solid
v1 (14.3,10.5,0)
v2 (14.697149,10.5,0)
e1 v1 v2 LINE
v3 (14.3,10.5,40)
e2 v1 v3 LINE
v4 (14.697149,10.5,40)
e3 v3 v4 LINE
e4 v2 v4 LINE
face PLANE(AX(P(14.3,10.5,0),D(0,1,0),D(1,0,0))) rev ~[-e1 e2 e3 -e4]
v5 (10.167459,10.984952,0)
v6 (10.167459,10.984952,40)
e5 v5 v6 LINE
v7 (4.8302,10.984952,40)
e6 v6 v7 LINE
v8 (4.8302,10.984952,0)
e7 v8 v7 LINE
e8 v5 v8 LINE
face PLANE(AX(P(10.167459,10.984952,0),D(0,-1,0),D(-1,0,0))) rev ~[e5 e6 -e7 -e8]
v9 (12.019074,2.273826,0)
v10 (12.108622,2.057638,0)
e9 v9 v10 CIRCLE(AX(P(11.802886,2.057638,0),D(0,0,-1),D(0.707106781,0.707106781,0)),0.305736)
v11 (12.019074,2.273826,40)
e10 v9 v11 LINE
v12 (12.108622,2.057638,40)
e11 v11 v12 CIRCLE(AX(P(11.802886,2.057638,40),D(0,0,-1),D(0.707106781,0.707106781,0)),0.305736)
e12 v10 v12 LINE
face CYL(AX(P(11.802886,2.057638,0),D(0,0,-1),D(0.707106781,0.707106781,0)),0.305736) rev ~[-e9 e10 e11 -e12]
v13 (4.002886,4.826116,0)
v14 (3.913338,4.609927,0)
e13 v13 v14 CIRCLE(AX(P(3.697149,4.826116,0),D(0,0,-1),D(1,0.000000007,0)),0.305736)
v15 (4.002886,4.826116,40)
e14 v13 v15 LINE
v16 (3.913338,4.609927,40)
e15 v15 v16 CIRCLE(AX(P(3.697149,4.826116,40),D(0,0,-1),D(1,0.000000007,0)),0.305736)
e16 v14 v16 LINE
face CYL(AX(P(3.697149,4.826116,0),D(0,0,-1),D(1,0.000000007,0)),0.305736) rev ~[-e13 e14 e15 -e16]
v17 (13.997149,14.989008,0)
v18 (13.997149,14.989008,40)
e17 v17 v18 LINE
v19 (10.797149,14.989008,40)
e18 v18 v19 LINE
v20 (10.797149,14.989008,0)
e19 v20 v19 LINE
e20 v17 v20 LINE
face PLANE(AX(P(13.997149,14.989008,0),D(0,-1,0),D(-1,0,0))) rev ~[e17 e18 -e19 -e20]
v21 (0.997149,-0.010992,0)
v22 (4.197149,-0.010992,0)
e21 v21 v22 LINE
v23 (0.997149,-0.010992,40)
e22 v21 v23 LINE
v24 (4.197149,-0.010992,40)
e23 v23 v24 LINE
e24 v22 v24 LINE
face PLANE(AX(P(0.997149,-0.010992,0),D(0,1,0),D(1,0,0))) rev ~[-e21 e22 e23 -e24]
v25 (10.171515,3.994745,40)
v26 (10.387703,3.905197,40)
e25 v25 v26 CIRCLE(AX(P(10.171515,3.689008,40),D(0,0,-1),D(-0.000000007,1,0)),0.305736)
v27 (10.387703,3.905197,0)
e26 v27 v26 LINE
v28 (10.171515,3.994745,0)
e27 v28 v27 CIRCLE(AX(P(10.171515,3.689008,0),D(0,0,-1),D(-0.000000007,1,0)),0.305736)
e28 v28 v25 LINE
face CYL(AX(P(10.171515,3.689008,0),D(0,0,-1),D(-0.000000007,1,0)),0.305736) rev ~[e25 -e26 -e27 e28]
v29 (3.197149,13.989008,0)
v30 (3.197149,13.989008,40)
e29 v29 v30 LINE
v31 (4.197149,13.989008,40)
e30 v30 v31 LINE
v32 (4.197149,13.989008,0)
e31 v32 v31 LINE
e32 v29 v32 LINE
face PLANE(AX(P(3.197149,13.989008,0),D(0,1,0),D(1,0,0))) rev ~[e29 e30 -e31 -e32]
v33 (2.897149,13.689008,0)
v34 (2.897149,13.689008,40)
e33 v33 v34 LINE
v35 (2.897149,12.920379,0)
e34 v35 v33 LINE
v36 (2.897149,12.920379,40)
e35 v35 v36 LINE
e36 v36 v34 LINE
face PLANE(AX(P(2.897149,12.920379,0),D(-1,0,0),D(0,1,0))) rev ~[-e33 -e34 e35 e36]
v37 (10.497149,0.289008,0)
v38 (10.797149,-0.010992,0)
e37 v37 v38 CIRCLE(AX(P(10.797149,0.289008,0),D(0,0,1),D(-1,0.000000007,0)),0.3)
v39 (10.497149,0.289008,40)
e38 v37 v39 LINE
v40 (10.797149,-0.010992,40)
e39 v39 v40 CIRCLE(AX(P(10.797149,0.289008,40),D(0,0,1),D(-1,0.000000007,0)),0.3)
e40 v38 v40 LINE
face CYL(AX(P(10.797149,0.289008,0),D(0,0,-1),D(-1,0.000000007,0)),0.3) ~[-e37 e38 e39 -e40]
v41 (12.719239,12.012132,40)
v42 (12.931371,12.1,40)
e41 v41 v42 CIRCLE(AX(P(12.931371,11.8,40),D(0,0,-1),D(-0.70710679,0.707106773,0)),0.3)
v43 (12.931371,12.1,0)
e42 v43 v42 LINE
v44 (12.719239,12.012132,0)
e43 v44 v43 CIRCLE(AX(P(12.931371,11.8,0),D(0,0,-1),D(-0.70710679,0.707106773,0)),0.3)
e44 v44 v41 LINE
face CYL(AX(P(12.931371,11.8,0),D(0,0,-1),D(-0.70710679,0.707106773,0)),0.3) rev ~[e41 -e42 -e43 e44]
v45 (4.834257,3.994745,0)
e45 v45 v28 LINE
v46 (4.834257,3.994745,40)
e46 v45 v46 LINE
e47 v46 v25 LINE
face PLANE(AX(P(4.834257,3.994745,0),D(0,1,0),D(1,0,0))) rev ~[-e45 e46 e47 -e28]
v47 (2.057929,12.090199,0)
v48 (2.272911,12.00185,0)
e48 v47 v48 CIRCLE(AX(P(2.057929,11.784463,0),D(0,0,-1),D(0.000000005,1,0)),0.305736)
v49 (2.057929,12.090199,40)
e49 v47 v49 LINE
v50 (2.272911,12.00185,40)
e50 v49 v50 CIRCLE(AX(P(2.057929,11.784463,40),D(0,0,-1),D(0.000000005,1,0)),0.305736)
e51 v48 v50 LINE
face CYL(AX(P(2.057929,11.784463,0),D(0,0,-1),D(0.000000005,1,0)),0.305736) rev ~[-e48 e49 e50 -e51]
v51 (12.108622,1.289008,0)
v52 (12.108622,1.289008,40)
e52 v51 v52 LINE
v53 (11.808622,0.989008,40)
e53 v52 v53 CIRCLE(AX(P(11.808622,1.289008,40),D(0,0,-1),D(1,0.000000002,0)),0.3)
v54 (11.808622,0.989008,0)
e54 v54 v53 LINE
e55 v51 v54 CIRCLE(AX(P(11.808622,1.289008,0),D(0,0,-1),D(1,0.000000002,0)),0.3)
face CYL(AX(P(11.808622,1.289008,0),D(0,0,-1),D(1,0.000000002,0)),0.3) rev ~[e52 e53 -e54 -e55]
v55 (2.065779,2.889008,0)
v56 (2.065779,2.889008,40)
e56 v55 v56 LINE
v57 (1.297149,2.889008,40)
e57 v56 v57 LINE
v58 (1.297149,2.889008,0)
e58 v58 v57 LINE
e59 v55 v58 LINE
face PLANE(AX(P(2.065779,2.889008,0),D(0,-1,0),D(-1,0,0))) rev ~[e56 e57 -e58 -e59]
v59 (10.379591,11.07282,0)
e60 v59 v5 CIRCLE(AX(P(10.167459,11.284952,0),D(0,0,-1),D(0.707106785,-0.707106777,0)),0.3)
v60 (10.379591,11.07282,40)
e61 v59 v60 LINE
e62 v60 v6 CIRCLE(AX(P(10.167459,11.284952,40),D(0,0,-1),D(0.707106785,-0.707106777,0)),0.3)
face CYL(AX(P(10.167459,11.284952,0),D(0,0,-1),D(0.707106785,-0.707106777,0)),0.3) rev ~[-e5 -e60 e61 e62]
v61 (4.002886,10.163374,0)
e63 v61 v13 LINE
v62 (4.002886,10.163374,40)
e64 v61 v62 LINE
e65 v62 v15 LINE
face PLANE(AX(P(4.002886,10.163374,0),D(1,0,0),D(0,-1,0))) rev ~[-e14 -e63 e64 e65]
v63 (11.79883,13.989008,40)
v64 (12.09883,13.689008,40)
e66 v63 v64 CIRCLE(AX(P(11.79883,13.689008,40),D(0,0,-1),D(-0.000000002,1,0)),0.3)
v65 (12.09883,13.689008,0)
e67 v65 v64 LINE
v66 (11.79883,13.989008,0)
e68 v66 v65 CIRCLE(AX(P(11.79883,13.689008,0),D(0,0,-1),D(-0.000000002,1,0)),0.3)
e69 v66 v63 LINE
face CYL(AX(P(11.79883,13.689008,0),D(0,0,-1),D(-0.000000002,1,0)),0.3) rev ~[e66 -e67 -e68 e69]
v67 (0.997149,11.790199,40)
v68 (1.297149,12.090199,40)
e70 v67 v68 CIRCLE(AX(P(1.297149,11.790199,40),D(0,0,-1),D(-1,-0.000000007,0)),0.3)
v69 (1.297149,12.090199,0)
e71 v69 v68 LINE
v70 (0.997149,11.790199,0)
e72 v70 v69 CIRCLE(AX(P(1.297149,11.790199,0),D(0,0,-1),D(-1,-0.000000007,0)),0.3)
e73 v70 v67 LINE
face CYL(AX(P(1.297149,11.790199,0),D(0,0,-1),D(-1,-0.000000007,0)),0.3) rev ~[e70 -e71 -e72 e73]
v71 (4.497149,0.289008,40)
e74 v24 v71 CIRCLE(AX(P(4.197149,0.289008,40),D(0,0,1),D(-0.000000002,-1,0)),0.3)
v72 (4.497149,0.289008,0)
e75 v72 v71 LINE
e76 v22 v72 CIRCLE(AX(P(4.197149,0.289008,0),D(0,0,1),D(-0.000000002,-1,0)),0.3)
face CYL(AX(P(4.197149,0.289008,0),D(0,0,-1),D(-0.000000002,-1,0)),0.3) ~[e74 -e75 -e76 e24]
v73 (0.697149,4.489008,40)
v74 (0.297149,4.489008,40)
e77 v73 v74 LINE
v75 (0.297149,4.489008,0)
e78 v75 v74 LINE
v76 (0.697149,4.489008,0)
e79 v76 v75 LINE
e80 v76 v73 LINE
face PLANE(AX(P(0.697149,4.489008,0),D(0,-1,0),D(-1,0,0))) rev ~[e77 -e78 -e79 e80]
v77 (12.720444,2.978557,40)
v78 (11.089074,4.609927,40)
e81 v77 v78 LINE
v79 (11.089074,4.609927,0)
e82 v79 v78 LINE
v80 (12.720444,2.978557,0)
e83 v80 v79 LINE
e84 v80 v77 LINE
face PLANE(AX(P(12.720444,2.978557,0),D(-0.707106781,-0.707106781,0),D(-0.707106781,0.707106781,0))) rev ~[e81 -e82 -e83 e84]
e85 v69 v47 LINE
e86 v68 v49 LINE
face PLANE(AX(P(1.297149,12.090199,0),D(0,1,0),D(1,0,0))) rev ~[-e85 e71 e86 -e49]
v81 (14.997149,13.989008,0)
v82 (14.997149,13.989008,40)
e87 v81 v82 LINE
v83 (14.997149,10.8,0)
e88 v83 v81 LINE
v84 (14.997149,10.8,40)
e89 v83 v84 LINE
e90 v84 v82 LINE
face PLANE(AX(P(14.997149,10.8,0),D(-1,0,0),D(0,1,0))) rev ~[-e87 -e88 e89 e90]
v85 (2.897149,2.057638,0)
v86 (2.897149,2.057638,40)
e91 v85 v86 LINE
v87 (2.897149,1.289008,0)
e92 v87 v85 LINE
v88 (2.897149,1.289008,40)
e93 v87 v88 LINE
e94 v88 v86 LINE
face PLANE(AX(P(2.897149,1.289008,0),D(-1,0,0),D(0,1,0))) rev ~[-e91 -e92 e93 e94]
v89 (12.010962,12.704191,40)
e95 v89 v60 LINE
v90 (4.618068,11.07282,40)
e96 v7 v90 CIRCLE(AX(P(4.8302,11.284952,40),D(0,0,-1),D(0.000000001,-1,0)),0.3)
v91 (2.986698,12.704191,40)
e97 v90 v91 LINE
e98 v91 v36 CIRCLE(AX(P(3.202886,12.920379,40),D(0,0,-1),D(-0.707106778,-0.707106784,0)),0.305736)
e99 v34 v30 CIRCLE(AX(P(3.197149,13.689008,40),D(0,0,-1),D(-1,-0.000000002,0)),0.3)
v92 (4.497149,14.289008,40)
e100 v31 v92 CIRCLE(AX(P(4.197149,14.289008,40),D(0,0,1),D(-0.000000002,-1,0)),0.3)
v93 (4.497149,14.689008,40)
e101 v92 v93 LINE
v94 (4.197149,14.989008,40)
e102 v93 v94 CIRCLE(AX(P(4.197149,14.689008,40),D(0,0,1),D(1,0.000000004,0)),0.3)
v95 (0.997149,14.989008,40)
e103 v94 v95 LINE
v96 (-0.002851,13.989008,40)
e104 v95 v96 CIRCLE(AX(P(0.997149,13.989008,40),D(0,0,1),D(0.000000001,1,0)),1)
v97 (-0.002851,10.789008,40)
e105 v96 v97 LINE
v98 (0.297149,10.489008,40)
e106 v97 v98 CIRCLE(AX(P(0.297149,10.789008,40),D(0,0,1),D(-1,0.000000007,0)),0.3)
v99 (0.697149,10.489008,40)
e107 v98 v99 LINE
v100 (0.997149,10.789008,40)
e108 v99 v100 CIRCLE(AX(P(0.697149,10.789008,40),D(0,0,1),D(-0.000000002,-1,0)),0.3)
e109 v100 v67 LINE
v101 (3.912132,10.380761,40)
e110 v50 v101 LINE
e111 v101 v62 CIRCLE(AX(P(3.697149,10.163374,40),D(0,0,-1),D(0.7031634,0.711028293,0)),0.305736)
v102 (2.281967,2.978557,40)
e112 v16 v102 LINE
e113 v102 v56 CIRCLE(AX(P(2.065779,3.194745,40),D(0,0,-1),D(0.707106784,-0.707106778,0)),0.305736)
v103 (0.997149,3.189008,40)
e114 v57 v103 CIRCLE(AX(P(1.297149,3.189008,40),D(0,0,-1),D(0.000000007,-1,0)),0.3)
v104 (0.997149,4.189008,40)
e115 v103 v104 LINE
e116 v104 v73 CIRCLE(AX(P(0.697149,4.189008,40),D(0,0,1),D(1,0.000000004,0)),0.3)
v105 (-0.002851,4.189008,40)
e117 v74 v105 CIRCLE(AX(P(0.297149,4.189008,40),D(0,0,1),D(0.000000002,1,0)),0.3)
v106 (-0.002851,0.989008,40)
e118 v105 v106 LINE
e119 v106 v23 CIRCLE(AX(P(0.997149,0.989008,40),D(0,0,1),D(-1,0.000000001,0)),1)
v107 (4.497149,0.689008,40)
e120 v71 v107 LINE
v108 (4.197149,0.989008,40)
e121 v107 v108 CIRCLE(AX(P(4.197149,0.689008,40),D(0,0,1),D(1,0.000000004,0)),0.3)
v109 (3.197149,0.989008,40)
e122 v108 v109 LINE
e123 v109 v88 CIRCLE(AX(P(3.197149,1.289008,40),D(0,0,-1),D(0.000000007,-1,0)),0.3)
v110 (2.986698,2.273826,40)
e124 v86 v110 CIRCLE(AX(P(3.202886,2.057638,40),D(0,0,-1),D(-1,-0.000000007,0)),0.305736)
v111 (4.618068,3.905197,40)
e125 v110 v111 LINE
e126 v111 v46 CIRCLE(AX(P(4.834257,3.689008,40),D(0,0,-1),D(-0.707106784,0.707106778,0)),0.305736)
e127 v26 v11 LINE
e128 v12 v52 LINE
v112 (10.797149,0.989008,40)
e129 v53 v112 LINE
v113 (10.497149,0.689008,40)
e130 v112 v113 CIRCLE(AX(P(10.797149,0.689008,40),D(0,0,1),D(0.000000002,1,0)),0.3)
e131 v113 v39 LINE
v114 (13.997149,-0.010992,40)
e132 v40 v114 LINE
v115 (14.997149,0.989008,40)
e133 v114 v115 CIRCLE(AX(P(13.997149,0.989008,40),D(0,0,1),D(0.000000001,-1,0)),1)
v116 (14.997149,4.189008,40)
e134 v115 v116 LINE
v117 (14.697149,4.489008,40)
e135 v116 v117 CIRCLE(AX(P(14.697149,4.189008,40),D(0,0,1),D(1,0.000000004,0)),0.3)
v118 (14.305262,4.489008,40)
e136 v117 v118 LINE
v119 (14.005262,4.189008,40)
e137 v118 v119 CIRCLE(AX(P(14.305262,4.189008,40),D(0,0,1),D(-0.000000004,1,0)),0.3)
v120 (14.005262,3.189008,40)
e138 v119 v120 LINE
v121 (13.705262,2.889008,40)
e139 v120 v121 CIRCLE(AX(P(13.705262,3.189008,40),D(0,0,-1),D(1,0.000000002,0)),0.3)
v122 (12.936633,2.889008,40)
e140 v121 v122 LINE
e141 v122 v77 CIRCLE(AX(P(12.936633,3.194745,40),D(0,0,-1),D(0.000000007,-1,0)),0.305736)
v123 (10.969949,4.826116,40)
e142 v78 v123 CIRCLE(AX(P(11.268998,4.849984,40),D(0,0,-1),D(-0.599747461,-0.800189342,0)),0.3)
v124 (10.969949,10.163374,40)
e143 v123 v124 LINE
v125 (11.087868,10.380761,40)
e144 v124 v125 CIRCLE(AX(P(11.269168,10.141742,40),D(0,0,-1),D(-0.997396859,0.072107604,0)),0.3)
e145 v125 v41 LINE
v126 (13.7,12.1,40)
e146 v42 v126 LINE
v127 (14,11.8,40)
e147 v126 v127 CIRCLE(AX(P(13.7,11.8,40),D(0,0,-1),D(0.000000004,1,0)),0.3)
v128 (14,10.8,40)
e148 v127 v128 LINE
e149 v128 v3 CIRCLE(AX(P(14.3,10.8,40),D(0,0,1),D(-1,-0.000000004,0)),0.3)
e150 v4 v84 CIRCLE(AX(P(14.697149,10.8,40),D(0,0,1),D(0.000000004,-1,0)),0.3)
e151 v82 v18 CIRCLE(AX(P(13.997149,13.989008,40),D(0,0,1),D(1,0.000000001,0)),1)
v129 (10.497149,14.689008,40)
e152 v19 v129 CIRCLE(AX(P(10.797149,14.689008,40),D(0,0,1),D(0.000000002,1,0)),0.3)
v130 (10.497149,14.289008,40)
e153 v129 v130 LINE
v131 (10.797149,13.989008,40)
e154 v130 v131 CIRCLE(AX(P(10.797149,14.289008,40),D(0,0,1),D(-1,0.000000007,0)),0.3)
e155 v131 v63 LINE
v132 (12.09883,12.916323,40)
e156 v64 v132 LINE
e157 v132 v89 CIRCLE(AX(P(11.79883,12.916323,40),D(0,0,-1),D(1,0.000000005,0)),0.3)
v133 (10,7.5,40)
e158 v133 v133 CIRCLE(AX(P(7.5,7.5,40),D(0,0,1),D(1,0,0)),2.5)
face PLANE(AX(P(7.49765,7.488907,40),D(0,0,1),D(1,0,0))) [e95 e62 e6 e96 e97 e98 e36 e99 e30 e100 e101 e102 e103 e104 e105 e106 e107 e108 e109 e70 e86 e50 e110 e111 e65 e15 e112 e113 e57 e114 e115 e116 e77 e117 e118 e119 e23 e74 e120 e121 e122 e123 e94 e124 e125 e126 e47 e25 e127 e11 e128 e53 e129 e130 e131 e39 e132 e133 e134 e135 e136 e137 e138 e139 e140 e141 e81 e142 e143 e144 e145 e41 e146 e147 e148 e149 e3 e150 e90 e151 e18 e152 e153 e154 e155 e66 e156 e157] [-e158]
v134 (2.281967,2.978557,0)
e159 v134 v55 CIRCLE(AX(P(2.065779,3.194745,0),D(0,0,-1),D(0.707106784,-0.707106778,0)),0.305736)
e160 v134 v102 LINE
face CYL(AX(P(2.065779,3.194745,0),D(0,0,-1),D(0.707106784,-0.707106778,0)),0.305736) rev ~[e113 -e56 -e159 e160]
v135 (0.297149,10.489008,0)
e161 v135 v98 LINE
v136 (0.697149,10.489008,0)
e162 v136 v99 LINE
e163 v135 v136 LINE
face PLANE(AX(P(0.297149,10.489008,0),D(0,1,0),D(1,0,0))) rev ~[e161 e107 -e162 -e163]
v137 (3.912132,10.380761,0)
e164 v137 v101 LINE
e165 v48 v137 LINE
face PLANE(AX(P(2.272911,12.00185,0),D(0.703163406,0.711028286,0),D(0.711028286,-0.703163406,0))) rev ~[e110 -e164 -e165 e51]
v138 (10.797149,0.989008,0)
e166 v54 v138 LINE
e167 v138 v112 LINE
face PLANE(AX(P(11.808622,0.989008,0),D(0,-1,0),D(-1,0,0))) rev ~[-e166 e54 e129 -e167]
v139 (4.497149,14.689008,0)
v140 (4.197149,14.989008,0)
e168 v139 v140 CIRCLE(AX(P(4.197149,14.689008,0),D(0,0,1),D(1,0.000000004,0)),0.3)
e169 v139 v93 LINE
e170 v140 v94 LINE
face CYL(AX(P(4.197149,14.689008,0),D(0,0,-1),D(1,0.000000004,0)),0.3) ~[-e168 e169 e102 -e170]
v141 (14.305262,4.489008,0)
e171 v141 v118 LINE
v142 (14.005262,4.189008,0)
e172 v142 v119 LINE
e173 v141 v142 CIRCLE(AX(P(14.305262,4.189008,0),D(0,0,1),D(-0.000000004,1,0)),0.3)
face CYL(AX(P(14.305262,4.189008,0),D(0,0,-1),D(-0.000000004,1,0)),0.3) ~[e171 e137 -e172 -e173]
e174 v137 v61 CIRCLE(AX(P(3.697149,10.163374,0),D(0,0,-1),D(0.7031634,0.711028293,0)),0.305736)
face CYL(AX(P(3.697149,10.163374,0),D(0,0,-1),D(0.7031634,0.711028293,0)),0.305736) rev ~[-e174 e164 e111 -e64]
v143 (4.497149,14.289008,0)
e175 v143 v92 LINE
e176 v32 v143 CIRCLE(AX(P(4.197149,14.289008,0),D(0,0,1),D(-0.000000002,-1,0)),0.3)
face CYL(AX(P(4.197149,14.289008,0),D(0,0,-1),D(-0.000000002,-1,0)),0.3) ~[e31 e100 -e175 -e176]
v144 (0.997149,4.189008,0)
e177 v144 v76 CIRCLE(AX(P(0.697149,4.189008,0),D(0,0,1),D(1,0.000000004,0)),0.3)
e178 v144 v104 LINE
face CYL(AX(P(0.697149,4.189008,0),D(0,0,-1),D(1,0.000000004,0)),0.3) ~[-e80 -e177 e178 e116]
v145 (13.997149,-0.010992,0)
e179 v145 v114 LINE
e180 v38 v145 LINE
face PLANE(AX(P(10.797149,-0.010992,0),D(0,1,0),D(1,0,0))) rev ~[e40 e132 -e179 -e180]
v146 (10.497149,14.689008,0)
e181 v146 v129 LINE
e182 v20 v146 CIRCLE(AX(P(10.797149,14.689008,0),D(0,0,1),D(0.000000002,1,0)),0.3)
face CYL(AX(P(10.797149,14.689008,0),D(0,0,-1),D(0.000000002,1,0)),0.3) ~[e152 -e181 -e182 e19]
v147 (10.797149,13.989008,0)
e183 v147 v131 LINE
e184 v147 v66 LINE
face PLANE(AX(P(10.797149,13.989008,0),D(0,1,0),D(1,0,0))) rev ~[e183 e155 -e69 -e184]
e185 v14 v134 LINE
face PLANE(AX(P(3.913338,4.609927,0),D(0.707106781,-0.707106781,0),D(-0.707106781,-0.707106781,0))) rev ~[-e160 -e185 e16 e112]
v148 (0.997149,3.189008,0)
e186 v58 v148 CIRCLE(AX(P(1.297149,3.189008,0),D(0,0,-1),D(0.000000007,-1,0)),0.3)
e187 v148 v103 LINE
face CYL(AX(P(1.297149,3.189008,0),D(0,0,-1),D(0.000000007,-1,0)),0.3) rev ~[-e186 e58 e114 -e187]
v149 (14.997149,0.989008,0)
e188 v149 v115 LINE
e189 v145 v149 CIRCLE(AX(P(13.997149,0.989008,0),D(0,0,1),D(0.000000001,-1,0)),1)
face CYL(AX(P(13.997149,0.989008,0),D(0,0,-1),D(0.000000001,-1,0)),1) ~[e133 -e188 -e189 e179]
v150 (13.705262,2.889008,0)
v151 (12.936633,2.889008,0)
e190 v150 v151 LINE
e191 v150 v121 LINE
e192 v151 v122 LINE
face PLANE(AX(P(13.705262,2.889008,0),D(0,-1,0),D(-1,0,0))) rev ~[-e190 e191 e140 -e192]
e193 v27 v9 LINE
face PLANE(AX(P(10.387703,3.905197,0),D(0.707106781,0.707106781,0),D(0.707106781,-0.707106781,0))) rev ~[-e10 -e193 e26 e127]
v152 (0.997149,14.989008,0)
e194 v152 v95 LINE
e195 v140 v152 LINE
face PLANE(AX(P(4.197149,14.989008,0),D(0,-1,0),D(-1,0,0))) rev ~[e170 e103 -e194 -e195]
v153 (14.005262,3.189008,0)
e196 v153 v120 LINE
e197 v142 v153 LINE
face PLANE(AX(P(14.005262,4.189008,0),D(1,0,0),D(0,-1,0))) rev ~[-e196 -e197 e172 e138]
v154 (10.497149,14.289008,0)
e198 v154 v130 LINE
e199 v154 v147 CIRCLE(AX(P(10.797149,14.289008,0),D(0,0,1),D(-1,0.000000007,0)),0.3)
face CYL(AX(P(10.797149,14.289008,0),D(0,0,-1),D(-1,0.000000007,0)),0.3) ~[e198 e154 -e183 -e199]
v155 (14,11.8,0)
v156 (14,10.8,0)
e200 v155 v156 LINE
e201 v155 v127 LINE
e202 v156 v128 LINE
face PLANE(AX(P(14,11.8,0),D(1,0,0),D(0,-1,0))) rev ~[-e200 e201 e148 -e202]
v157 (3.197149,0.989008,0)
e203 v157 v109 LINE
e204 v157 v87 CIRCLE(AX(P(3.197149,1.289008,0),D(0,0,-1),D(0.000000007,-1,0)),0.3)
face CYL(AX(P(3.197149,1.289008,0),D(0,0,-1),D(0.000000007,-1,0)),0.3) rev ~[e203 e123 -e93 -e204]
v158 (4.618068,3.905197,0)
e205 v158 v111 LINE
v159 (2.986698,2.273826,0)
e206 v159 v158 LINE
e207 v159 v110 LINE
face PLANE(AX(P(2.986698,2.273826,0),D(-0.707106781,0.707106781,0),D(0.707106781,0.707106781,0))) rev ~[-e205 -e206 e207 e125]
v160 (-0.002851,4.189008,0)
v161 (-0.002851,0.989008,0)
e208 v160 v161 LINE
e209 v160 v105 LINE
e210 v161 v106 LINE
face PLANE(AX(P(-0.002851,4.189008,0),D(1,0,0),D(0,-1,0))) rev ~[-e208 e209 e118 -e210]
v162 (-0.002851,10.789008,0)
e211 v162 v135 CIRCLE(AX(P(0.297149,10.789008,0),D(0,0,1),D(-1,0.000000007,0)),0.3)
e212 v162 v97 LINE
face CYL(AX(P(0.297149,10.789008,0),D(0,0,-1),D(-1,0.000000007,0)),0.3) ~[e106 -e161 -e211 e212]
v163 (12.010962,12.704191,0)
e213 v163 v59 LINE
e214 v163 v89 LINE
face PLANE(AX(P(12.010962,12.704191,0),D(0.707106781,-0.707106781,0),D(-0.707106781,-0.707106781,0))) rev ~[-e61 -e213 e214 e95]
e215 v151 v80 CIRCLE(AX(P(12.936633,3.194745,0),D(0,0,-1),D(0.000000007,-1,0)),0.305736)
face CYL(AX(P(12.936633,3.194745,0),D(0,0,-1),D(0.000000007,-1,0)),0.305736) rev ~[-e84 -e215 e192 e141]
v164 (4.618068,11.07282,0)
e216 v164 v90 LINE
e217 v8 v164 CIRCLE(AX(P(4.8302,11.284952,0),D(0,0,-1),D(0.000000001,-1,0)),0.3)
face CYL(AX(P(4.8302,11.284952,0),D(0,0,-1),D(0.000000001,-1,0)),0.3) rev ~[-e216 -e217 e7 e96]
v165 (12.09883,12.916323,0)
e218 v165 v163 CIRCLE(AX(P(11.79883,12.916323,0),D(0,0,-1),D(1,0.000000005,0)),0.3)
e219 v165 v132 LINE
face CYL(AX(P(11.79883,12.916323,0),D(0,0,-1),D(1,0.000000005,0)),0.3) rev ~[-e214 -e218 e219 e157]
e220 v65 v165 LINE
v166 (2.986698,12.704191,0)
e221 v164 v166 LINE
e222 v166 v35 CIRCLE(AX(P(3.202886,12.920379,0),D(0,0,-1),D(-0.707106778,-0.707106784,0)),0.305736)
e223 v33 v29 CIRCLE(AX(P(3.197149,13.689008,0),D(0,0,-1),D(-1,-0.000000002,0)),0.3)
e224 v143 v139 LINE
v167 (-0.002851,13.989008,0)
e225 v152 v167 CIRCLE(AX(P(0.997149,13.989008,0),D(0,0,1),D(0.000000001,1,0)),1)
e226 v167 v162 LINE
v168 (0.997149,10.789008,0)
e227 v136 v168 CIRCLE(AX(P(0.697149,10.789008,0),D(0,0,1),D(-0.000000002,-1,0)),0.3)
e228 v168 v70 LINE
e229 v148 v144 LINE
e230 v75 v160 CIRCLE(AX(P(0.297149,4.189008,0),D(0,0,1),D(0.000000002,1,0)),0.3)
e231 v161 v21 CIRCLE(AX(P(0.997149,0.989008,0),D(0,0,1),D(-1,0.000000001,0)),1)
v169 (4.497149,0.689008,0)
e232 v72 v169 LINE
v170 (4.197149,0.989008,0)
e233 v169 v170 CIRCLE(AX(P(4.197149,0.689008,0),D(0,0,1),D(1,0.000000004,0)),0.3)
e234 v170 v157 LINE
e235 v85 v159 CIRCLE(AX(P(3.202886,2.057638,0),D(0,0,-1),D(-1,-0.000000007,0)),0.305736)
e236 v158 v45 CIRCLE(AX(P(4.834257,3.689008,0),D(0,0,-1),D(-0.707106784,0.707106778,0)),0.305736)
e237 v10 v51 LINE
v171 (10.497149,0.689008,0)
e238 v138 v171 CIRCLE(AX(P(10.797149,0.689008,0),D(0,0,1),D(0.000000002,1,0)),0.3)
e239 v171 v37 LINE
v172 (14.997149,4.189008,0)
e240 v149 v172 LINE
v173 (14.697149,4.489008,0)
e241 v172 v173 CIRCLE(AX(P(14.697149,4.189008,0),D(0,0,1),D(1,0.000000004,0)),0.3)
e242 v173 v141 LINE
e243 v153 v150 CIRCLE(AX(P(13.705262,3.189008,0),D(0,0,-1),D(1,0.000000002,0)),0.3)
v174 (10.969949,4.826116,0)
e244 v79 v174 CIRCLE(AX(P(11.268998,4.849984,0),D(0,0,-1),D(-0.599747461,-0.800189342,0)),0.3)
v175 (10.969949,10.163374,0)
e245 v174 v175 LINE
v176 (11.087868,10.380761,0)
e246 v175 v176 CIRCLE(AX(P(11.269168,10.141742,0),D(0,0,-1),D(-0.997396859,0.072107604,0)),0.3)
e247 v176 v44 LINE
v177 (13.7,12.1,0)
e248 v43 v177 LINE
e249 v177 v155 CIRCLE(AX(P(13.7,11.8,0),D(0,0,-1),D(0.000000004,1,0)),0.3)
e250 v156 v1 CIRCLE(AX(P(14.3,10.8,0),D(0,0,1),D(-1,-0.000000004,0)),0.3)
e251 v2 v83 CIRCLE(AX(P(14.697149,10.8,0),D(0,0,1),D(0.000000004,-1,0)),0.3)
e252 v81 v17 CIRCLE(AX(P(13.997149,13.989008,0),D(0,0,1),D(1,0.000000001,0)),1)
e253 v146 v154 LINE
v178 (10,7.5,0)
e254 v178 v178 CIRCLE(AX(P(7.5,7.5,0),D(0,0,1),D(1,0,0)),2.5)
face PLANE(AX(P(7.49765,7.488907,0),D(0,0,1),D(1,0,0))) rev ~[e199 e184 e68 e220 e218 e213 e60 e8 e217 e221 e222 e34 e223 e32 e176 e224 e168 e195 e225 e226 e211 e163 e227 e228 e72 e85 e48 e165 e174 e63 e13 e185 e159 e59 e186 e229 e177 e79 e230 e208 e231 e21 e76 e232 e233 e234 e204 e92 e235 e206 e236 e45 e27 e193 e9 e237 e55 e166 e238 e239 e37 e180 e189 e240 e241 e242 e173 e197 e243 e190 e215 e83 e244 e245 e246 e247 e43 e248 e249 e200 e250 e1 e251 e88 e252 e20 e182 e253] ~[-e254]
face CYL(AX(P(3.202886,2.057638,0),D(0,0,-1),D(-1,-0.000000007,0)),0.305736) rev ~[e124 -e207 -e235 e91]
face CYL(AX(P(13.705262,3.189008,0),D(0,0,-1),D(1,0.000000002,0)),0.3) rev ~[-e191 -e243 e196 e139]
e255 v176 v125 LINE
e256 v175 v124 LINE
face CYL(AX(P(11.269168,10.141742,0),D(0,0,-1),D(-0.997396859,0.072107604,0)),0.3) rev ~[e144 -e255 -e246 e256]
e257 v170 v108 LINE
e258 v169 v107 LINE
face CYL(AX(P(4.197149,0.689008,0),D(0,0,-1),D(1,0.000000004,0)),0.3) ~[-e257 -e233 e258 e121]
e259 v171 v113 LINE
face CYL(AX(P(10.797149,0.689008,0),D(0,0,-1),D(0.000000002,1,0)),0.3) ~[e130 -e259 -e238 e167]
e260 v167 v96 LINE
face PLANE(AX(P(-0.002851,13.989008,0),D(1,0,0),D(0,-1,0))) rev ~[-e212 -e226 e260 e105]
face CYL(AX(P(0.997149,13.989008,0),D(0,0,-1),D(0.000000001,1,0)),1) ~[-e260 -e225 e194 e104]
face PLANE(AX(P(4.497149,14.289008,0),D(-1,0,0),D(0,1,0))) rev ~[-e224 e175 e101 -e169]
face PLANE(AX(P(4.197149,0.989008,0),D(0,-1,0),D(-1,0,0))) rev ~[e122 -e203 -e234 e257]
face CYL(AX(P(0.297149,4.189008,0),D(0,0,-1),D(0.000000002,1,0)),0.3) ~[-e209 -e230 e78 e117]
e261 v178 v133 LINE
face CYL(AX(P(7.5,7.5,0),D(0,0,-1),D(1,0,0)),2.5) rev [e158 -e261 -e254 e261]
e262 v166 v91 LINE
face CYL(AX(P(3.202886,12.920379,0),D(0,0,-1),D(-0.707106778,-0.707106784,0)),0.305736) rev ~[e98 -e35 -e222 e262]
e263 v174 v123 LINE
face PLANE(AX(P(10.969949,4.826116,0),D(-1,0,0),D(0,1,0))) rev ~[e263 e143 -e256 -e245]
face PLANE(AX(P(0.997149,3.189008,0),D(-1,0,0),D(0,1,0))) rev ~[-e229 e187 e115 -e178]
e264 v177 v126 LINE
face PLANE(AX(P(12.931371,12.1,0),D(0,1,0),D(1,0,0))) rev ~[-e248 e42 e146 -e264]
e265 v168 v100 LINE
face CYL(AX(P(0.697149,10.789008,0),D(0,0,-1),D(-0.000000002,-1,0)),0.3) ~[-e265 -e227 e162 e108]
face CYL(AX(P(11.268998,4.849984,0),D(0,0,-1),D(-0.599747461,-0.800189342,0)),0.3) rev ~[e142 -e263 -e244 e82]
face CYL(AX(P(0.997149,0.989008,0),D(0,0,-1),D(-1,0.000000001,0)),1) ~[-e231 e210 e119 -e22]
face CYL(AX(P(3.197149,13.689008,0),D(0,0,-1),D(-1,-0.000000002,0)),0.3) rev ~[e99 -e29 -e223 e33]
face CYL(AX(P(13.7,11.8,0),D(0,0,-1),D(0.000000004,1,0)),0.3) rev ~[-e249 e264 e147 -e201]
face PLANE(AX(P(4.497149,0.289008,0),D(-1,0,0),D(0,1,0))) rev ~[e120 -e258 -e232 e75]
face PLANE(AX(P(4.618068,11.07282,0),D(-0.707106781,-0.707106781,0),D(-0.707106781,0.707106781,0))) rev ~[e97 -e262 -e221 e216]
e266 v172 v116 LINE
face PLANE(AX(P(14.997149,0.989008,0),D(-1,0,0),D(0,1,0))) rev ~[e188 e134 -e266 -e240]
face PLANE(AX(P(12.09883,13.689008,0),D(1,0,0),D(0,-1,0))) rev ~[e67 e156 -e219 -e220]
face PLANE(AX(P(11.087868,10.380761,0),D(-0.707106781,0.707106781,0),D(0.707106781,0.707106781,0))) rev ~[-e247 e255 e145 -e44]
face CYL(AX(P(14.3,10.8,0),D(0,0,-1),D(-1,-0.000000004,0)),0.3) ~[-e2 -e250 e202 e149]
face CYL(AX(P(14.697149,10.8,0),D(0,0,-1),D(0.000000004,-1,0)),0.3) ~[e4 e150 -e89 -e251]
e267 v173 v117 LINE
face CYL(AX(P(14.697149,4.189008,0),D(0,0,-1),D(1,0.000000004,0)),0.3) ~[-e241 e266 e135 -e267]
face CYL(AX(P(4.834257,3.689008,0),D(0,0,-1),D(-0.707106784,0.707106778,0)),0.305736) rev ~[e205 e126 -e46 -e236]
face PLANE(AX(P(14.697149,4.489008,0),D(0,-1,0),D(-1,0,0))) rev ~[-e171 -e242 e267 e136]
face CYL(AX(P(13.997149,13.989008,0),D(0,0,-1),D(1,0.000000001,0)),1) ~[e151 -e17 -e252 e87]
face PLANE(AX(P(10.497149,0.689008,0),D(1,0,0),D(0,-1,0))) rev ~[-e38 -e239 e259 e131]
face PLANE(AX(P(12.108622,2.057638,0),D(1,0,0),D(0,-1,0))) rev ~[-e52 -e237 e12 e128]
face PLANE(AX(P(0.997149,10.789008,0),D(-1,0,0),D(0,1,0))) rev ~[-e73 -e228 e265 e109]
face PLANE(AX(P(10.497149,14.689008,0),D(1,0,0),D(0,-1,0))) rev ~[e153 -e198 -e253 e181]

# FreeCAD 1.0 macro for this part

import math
import FreeCAD as App
import Part
import Sketcher

V = App.Vector
Q = App.Units.Quantity

doc = App.newDocument("Part")
params = doc.addObject("Spreadsheet::Sheet", "Params")
for row, (alias, value) in enumerate([
    ("sketch1_diameter", "5 mm"),
    ("sketch1_radius", "1 mm"),
    ("sketch1_radius2", "0.3 mm"),
    ("sketch1_width", "1 mm"),
    ("sketch1_width2", "3.2 mm"),
    ("pad1_length", "40 mm"),
], start=1):
    params.set(f"A{row}", alias)
    params.set(f"B{row}", "=" + value)
    params.setAlias(f"B{row}", alias)

body = doc.addObject("PartDesign::Body", "Body")

# Sketch on XY plane
sketch1 = doc.addObject("Sketcher::SketchObject", "Sketch")
body.addObject(sketch1)
sketch1.AttachmentSupport = (doc.XY_Plane, [""])
sketch1.MapMode = "FlatFace"
sketch1.addGeometry([
    Part.LineSegment(V(0.997149, -0.010992, 0), V(4.197149, -0.010992, 0)),  # 0
    Part.ArcOfCircle(Part.Circle(V(4.197149, 0.289008, 0), V(0, 0, 1), 0.3), math.radians(-90), math.radians(0)),  # 1
    Part.LineSegment(V(4.497149, 0.289008, 0), V(4.497149, 0.689008, 0)),  # 2
    Part.ArcOfCircle(Part.Circle(V(4.197149, 0.689008, 0), V(0, 0, 1), 0.3), math.radians(0), math.radians(90)),  # 3
    Part.LineSegment(V(4.197149, 0.989008, 0), V(3.197149, 0.989008, 0)),  # 4
    Part.ArcOfCircle(Part.Circle(V(3.197149, 1.289008, 0), V(0, 0, 1), 0.3), math.radians(180), math.radians(270)),  # 5
    Part.LineSegment(V(2.897149, 1.289008, 0), V(2.897149, 2.057638, 0)),  # 6
    Part.ArcOfCircle(Part.Circle(V(3.202886, 2.057638, 0), V(0, 0, 1), 0.305736), math.radians(135), math.radians(180)),  # 7
    Part.LineSegment(V(2.986698, 2.273826, 0), V(4.618068, 3.905197, 0)),  # 8
    Part.ArcOfCircle(Part.Circle(V(4.834257, 3.689008, 0), V(0, 0, 1), 0.305736), math.radians(90), math.radians(135)),  # 9
    Part.LineSegment(V(4.834257, 3.994745, 0), V(10.171515, 3.994745, 0)),  # 10
    Part.ArcOfCircle(Part.Circle(V(10.171515, 3.689008, 0), V(0, 0, 1), 0.305736), math.radians(45), math.radians(90)),  # 11
    Part.LineSegment(V(10.387703, 3.905197, 0), V(12.019074, 2.273826, 0)),  # 12
    Part.ArcOfCircle(Part.Circle(V(11.802886, 2.057638, 0), V(0, 0, 1), 0.305736), math.radians(0), math.radians(45)),  # 13
    Part.LineSegment(V(12.108622, 2.057638, 0), V(12.108622, 1.289008, 0)),  # 14
    Part.ArcOfCircle(Part.Circle(V(11.808622, 1.289008, 0), V(0, 0, 1), 0.3), math.radians(-90), math.radians(0)),  # 15
    Part.LineSegment(V(11.808622, 0.989008, 0), V(10.797149, 0.989008, 0)),  # 16
    Part.ArcOfCircle(Part.Circle(V(10.797149, 0.689008, 0), V(0, 0, 1), 0.3), math.radians(90), math.radians(180)),  # 17
    Part.LineSegment(V(10.497149, 0.689008, 0), V(10.497149, 0.289008, 0)),  # 18
    Part.ArcOfCircle(Part.Circle(V(10.797149, 0.289008, 0), V(0, 0, 1), 0.3), math.radians(180), math.radians(270)),  # 19
    Part.LineSegment(V(10.797149, -0.010992, 0), V(13.997149, -0.010992, 0)),  # 20
    Part.ArcOfCircle(Part.Circle(V(13.997149, 0.989008, 0), V(0, 0, 1), 1), math.radians(-90), math.radians(0)),  # 21
    Part.LineSegment(V(14.997149, 0.989008, 0), V(14.997149, 4.189008, 0)),  # 22
    Part.ArcOfCircle(Part.Circle(V(14.697149, 4.189008, 0), V(0, 0, 1), 0.3), math.radians(0), math.radians(90)),  # 23
    Part.LineSegment(V(14.697149, 4.489008, 0), V(14.305262, 4.489008, 0)),  # 24
    Part.ArcOfCircle(Part.Circle(V(14.305262, 4.189008, 0), V(0, 0, 1), 0.3), math.radians(90), math.radians(180)),  # 25
    Part.LineSegment(V(14.005262, 4.189008, 0), V(14.005262, 3.189008, 0)),  # 26
    Part.ArcOfCircle(Part.Circle(V(13.705262, 3.189008, 0), V(0, 0, 1), 0.3), math.radians(-90), math.radians(0)),  # 27
    Part.LineSegment(V(13.705262, 2.889008, 0), V(12.936633, 2.889008, 0)),  # 28
    Part.ArcOfCircle(Part.Circle(V(12.936633, 3.194745, 0), V(0, 0, 1), 0.305736), math.radians(-135), math.radians(-90)),  # 29
    Part.LineSegment(V(12.720444, 2.978557, 0), V(11.089074, 4.609927, 0)),  # 30
    Part.ArcOfCircle(Part.Circle(V(11.268998, 4.849984, 0), V(0, 0, 1), 0.3), math.radians(-175.436627), math.radians(-126.851813)),  # 31
    Part.LineSegment(V(10.969949, 4.826116, 0), V(10.969949, 10.163374, 0)),  # 32
    Part.ArcOfCircle(Part.Circle(V(11.269168, 10.141742, 0), V(0, 0, 1), 0.3), math.radians(127.180872), math.radians(175.86495)),  # 33
    Part.LineSegment(V(11.087868, 10.380761, 0), V(12.719239, 12.012132, 0)),  # 34
    Part.ArcOfCircle(Part.Circle(V(12.931371, 11.8, 0), V(0, 0, 1), 0.3), math.radians(90), math.radians(135.000001)),  # 35
    Part.LineSegment(V(12.931371, 12.1, 0), V(13.7, 12.1, 0)),  # 36
    Part.ArcOfCircle(Part.Circle(V(13.7, 11.8, 0), V(0, 0, 1), 0.3), math.radians(0), math.radians(90)),  # 37
    Part.LineSegment(V(14, 11.8, 0), V(14, 10.8, 0)),  # 38
    Part.ArcOfCircle(Part.Circle(V(14.3, 10.8, 0), V(0, 0, 1), 0.3), math.radians(-180), math.radians(-90)),  # 39
    Part.LineSegment(V(14.3, 10.5, 0), V(14.697149, 10.5, 0)),  # 40
    Part.ArcOfCircle(Part.Circle(V(14.697149, 10.8, 0), V(0, 0, 1), 0.3), math.radians(-90), math.radians(0)),  # 41
    Part.LineSegment(V(14.997149, 10.8, 0), V(14.997149, 13.989008, 0)),  # 42
    Part.ArcOfCircle(Part.Circle(V(13.997149, 13.989008, 0), V(0, 0, 1), 1), math.radians(0), math.radians(90)),  # 43
    Part.LineSegment(V(13.997149, 14.989008, 0), V(10.797149, 14.989008, 0)),  # 44
    Part.ArcOfCircle(Part.Circle(V(10.797149, 14.689008, 0), V(0, 0, 1), 0.3), math.radians(90), math.radians(180)),  # 45
    Part.LineSegment(V(10.497149, 14.689008, 0), V(10.497149, 14.289008, 0)),  # 46
    Part.ArcOfCircle(Part.Circle(V(10.797149, 14.289008, 0), V(0, 0, 1), 0.3), math.radians(180), math.radians(270)),  # 47
    Part.LineSegment(V(10.797149, 13.989008, 0), V(11.79883, 13.989008, 0)),  # 48
    Part.ArcOfCircle(Part.Circle(V(11.79883, 13.689008, 0), V(0, 0, 1), 0.3), math.radians(0), math.radians(90)),  # 49
    Part.LineSegment(V(12.09883, 13.689008, 0), V(12.09883, 12.916323, 0)),  # 50
    Part.ArcOfCircle(Part.Circle(V(11.79883, 12.916323, 0), V(0, 0, 1), 0.3), math.radians(-45), math.radians(0)),  # 51
    Part.LineSegment(V(12.010962, 12.704191, 0), V(10.379591, 11.07282, 0)),  # 52
    Part.ArcOfCircle(Part.Circle(V(10.167459, 11.284952, 0), V(0, 0, 1), 0.3), math.radians(-90), math.radians(-45)),  # 53
    Part.LineSegment(V(10.167459, 10.984952, 0), V(4.8302, 10.984952, 0)),  # 54
    Part.ArcOfCircle(Part.Circle(V(4.8302, 11.284952, 0), V(0, 0, 1), 0.3), math.radians(-135), math.radians(-90)),  # 55
    Part.LineSegment(V(4.618068, 11.07282, 0), V(2.986698, 12.704191, 0)),  # 56
    Part.ArcOfCircle(Part.Circle(V(3.202886, 12.920379, 0), V(0, 0, 1), 0.305736), math.radians(180), math.radians(225)),  # 57
    Part.LineSegment(V(2.897149, 12.920379, 0), V(2.897149, 13.689008, 0)),  # 58
    Part.ArcOfCircle(Part.Circle(V(3.197149, 13.689008, 0), V(0, 0, 1), 0.3), math.radians(90), math.radians(180)),  # 59
    Part.LineSegment(V(3.197149, 13.989008, 0), V(4.197149, 13.989008, 0)),  # 60
    Part.ArcOfCircle(Part.Circle(V(4.197149, 14.289008, 0), V(0, 0, 1), 0.3), math.radians(-90), math.radians(0)),  # 61
    Part.LineSegment(V(4.497149, 14.289008, 0), V(4.497149, 14.689008, 0)),  # 62
    Part.ArcOfCircle(Part.Circle(V(4.197149, 14.689008, 0), V(0, 0, 1), 0.3), math.radians(0), math.radians(90)),  # 63
    Part.LineSegment(V(4.197149, 14.989008, 0), V(0.997149, 14.989008, 0)),  # 64
    Part.ArcOfCircle(Part.Circle(V(0.997149, 13.989008, 0), V(0, 0, 1), 1), math.radians(90), math.radians(180)),  # 65
    Part.LineSegment(V(-0.002851, 13.989008, 0), V(-0.002851, 10.789008, 0)),  # 66
    Part.ArcOfCircle(Part.Circle(V(0.297149, 10.789008, 0), V(0, 0, 1), 0.3), math.radians(180), math.radians(270)),  # 67
    Part.LineSegment(V(0.297149, 10.489008, 0), V(0.697149, 10.489008, 0)),  # 68
    Part.ArcOfCircle(Part.Circle(V(0.697149, 10.789008, 0), V(0, 0, 1), 0.3), math.radians(-90), math.radians(0)),  # 69
    Part.LineSegment(V(0.997149, 10.789008, 0), V(0.997149, 11.790199, 0)),  # 70
    Part.ArcOfCircle(Part.Circle(V(1.297149, 11.790199, 0), V(0, 0, 1), 0.3), math.radians(90), math.radians(180)),  # 71
    Part.LineSegment(V(1.297149, 12.090199, 0), V(2.057929, 12.090199, 0)),  # 72
    Part.ArcOfCircle(Part.Circle(V(2.057929, 11.784463, 0), V(0, 0, 1), 0.305736), math.radians(45.318641), math.radians(90)),  # 73
    Part.LineSegment(V(2.272911, 12.00185, 0), V(3.912132, 10.380761, 0)),  # 74
    Part.ArcOfCircle(Part.Circle(V(3.697149, 10.163374, 0), V(0, 0, 1), 0.305736), math.radians(0), math.radians(45.318642)),  # 75
    Part.LineSegment(V(4.002886, 10.163374, 0), V(4.002886, 4.826116, 0)),  # 76
    Part.ArcOfCircle(Part.Circle(V(3.697149, 4.826116, 0), V(0, 0, 1), 0.305736), math.radians(-45), math.radians(0)),  # 77
    Part.LineSegment(V(3.913338, 4.609927, 0), V(2.281967, 2.978557, 0)),  # 78
    Part.ArcOfCircle(Part.Circle(V(2.065779, 3.194745, 0), V(0, 0, 1), 0.305736), math.radians(-90), math.radians(-45)),  # 79
    Part.LineSegment(V(2.065779, 2.889008, 0), V(1.297149, 2.889008, 0)),  # 80
    Part.ArcOfCircle(Part.Circle(V(1.297149, 3.189008, 0), V(0, 0, 1), 0.3), math.radians(180), math.radians(270)),  # 81
    Part.LineSegment(V(0.997149, 3.189008, 0), V(0.997149, 4.189008, 0)),  # 82
    Part.ArcOfCircle(Part.Circle(V(0.697149, 4.189008, 0), V(0, 0, 1), 0.3), math.radians(0), math.radians(90)),  # 83
    Part.LineSegment(V(0.697149, 4.489008, 0), V(0.297149, 4.489008, 0)),  # 84
    Part.ArcOfCircle(Part.Circle(V(0.297149, 4.189008, 0), V(0, 0, 1), 0.3), math.radians(90), math.radians(180)),  # 85
    Part.LineSegment(V(-0.002851, 4.189008, 0), V(-0.002851, 0.989008, 0)),  # 86
    Part.ArcOfCircle(Part.Circle(V(0.997149, 0.989008, 0), V(0, 0, 1), 1), math.radians(180), math.radians(270)),  # 87
    Part.Circle(V(7.5, 7.5, 0), V(0, 0, 1), 2.5),  # 88
], False)
sketch1.addConstraint([
    Sketcher.Constraint("Tangent", 0, 2, 1, 1),
    Sketcher.Constraint("Tangent", 1, 2, 2, 1),
    Sketcher.Constraint("Tangent", 2, 2, 3, 1),
    Sketcher.Constraint("Tangent", 3, 2, 4, 1),
    Sketcher.Constraint("Tangent", 4, 2, 5, 2),
    Sketcher.Constraint("Tangent", 5, 1, 6, 1),
    Sketcher.Constraint("Tangent", 6, 2, 7, 2),
    Sketcher.Constraint("Tangent", 7, 1, 8, 1),
    Sketcher.Constraint("Tangent", 8, 2, 9, 2),
    Sketcher.Constraint("Tangent", 9, 1, 10, 1),
    Sketcher.Constraint("Tangent", 10, 2, 11, 2),
    Sketcher.Constraint("Tangent", 11, 1, 12, 1),
    Sketcher.Constraint("Tangent", 12, 2, 13, 2),
    Sketcher.Constraint("Tangent", 13, 1, 14, 1),
    Sketcher.Constraint("Tangent", 14, 2, 15, 2),
    Sketcher.Constraint("Tangent", 15, 1, 16, 1),
    Sketcher.Constraint("Tangent", 16, 2, 17, 1),
    Sketcher.Constraint("Tangent", 17, 2, 18, 1),
    Sketcher.Constraint("Tangent", 18, 2, 19, 1),
    Sketcher.Constraint("Tangent", 19, 2, 20, 1),
    Sketcher.Constraint("Tangent", 20, 2, 21, 1),
    Sketcher.Constraint("Tangent", 21, 2, 22, 1),
    Sketcher.Constraint("Tangent", 22, 2, 23, 1),
    Sketcher.Constraint("Tangent", 23, 2, 24, 1),
    Sketcher.Constraint("Tangent", 24, 2, 25, 1),
    Sketcher.Constraint("Tangent", 25, 2, 26, 1),
    Sketcher.Constraint("Tangent", 26, 2, 27, 2),
    Sketcher.Constraint("Tangent", 27, 1, 28, 1),
    Sketcher.Constraint("Tangent", 28, 2, 29, 2),
    Sketcher.Constraint("Tangent", 29, 1, 30, 1),
    Sketcher.Constraint("Coincident", 30, 2, 31, 2),
    Sketcher.Constraint("Coincident", 31, 1, 32, 1),
    Sketcher.Constraint("Coincident", 32, 2, 33, 2),
    Sketcher.Constraint("Coincident", 33, 1, 34, 1),
    Sketcher.Constraint("Tangent", 34, 2, 35, 2),
    Sketcher.Constraint("Tangent", 35, 1, 36, 1),
    Sketcher.Constraint("Tangent", 36, 2, 37, 2),
    Sketcher.Constraint("Tangent", 37, 1, 38, 1),
    Sketcher.Constraint("Tangent", 38, 2, 39, 1),
    Sketcher.Constraint("Tangent", 39, 2, 40, 1),
    Sketcher.Constraint("Tangent", 40, 2, 41, 1),
    Sketcher.Constraint("Tangent", 41, 2, 42, 1),
    Sketcher.Constraint("Tangent", 42, 2, 43, 1),
    Sketcher.Constraint("Tangent", 43, 2, 44, 1),
    Sketcher.Constraint("Tangent", 44, 2, 45, 1),
    Sketcher.Constraint("Tangent", 45, 2, 46, 1),
    Sketcher.Constraint("Tangent", 46, 2, 47, 1),
    Sketcher.Constraint("Tangent", 47, 2, 48, 1),
    Sketcher.Constraint("Tangent", 48, 2, 49, 2),
    Sketcher.Constraint("Tangent", 49, 1, 50, 1),
    Sketcher.Constraint("Tangent", 50, 2, 51, 2),
    Sketcher.Constraint("Tangent", 51, 1, 52, 1),
    Sketcher.Constraint("Tangent", 52, 2, 53, 2),
    Sketcher.Constraint("Tangent", 53, 1, 54, 1),
    Sketcher.Constraint("Tangent", 54, 2, 55, 2),
    Sketcher.Constraint("Tangent", 55, 1, 56, 1),
    Sketcher.Constraint("Tangent", 56, 2, 57, 2),
    Sketcher.Constraint("Tangent", 57, 1, 58, 1),
    Sketcher.Constraint("Tangent", 58, 2, 59, 2),
    Sketcher.Constraint("Tangent", 59, 1, 60, 1),
    Sketcher.Constraint("Tangent", 60, 2, 61, 1),
    Sketcher.Constraint("Tangent", 61, 2, 62, 1),
    Sketcher.Constraint("Tangent", 62, 2, 63, 1),
    Sketcher.Constraint("Tangent", 63, 2, 64, 1),
    Sketcher.Constraint("Tangent", 64, 2, 65, 1),
    Sketcher.Constraint("Tangent", 65, 2, 66, 1),
    Sketcher.Constraint("Tangent", 66, 2, 67, 1),
    Sketcher.Constraint("Tangent", 67, 2, 68, 1),
    Sketcher.Constraint("Tangent", 68, 2, 69, 1),
    Sketcher.Constraint("Tangent", 69, 2, 70, 1),
    Sketcher.Constraint("Tangent", 70, 2, 71, 2),
    Sketcher.Constraint("Tangent", 71, 1, 72, 1),
    Sketcher.Constraint("Tangent", 72, 2, 73, 2),
    Sketcher.Constraint("Tangent", 73, 1, 74, 1),
    Sketcher.Constraint("Tangent", 74, 2, 75, 2),
    Sketcher.Constraint("Tangent", 75, 1, 76, 1),
    Sketcher.Constraint("Tangent", 76, 2, 77, 2),
    Sketcher.Constraint("Tangent", 77, 1, 78, 1),
    Sketcher.Constraint("Tangent", 78, 2, 79, 2),
    Sketcher.Constraint("Tangent", 79, 1, 80, 1),
    Sketcher.Constraint("Tangent", 80, 2, 81, 2),
    Sketcher.Constraint("Tangent", 81, 1, 82, 1),
    Sketcher.Constraint("Tangent", 82, 2, 83, 1),
    Sketcher.Constraint("Tangent", 83, 2, 84, 1),
    Sketcher.Constraint("Tangent", 84, 2, 85, 1),
    Sketcher.Constraint("Tangent", 85, 2, 86, 1),
    Sketcher.Constraint("Tangent", 86, 2, 87, 1),
    Sketcher.Constraint("Tangent", 87, 2, 0, 1),
    Sketcher.Constraint("Horizontal", 0),
    Sketcher.Constraint("Vertical", 2),
    Sketcher.Constraint("Horizontal", 4),
    Sketcher.Constraint("Vertical", 6),
    Sketcher.Constraint("Horizontal", 10),
    Sketcher.Constraint("Vertical", 14),
    Sketcher.Constraint("Horizontal", 16),
    Sketcher.Constraint("Vertical", 18),
    Sketcher.Constraint("Horizontal", 20),
    Sketcher.Constraint("Vertical", 22),
    Sketcher.Constraint("Horizontal", 24),
    Sketcher.Constraint("Vertical", 26),
    Sketcher.Constraint("Horizontal", 28),
    Sketcher.Constraint("Vertical", 32),
    Sketcher.Constraint("Horizontal", 36),
    Sketcher.Constraint("Vertical", 38),
    Sketcher.Constraint("Horizontal", 40),
    Sketcher.Constraint("Vertical", 42),
    Sketcher.Constraint("Horizontal", 44),
    Sketcher.Constraint("Vertical", 46),
    Sketcher.Constraint("Horizontal", 48),
    Sketcher.Constraint("Vertical", 50),
    Sketcher.Constraint("Horizontal", 54),
    Sketcher.Constraint("Vertical", 58),
    Sketcher.Constraint("Horizontal", 60),
    Sketcher.Constraint("Vertical", 62),
    Sketcher.Constraint("Horizontal", 64),
    Sketcher.Constraint("Vertical", 66),
    Sketcher.Constraint("Horizontal", 68),
    Sketcher.Constraint("Vertical", 70),
    Sketcher.Constraint("Horizontal", 72),
    Sketcher.Constraint("Vertical", 76),
    Sketcher.Constraint("Horizontal", 80),
    Sketcher.Constraint("Vertical", 82),
    Sketcher.Constraint("Horizontal", 84),
    Sketcher.Constraint("Vertical", 86),
    Sketcher.Constraint("Equal", 1, 3),
    Sketcher.Constraint("Equal", 3, 5),
    Sketcher.Constraint("Equal", 7, 9),
    Sketcher.Constraint("Equal", 9, 11),
    Sketcher.Constraint("Equal", 11, 13),
    Sketcher.Constraint("Equal", 5, 15),
    Sketcher.Constraint("Equal", 15, 17),
    Sketcher.Constraint("Equal", 17, 19),
    Sketcher.Constraint("Equal", 19, 23),
    Sketcher.Constraint("Equal", 23, 25),
    Sketcher.Constraint("Equal", 25, 27),
    Sketcher.Constraint("Equal", 13, 29),
    Sketcher.Constraint("Equal", 27, 31),
    Sketcher.Constraint("Equal", 31, 33),
    Sketcher.Constraint("Equal", 33, 35),
    Sketcher.Constraint("Equal", 35, 37),
    Sketcher.Constraint("Equal", 37, 39),
    Sketcher.Constraint("Equal", 39, 41),
    Sketcher.Constraint("Equal", 21, 43),
    Sketcher.Constraint("Equal", 41, 45),
    Sketcher.Constraint("Equal", 45, 47),
    Sketcher.Constraint("Equal", 47, 49),
    Sketcher.Constraint("Equal", 49, 51),
    Sketcher.Constraint("Equal", 51, 53),
    Sketcher.Constraint("Equal", 53, 55),
    Sketcher.Constraint("Equal", 29, 57),
    Sketcher.Constraint("Equal", 55, 59),
    Sketcher.Constraint("Equal", 59, 61),
    Sketcher.Constraint("Equal", 61, 63),
    Sketcher.Constraint("Equal", 43, 65),
    Sketcher.Constraint("Equal", 63, 67),
    Sketcher.Constraint("Equal", 67, 69),
    Sketcher.Constraint("Equal", 69, 71),
    Sketcher.Constraint("Equal", 57, 73),
    Sketcher.Constraint("Equal", 73, 75),
    Sketcher.Constraint("Equal", 75, 77),
    Sketcher.Constraint("Equal", 77, 79),
    Sketcher.Constraint("Equal", 71, 81),
    Sketcher.Constraint("Equal", 81, 83),
    Sketcher.Constraint("Equal", 83, 85),
    Sketcher.Constraint("Equal", 65, 87),
    Sketcher.Constraint("Perpendicular", 8, 12),
    Sketcher.Constraint("Parallel", 12, 30),
    Sketcher.Constraint("Perpendicular", 30, 34),
    Sketcher.Constraint("Parallel", 34, 52),
    Sketcher.Constraint("Perpendicular", 52, 56),
    Sketcher.Constraint("Perpendicular", 56, 78),
    Sketcher.Constraint("Horizontal", 7, 3, 13, 3),
    Sketcher.Constraint("Horizontal", 5, 3, 15, 3),
    Sketcher.Constraint("Horizontal", 1, 3, 19, 3),
    Sketcher.Constraint("Horizontal", 49, 3, 59, 3),
    Sketcher.Constraint("Horizontal", 45, 3, 63, 3),
    Sketcher.Constraint("Horizontal", 29, 3, 79, 3),
    Sketcher.Constraint("Horizontal", 25, 3, 83, 3),
    Sketcher.Constraint("Horizontal", 87, 3, 3, 2),
    Sketcher.Constraint("Horizontal", 8, 2, 11, 1),
    Sketcher.Constraint("Horizontal", 77, 3, 31, 1),
    Sketcher.Constraint("Horizontal", 75, 3, 32, 2),
    Sketcher.Constraint("Horizontal", 42, 2, 47, 2),
    Sketcher.Constraint("Horizontal", 51, 1, 56, 2),
    Sketcher.Constraint("Horizontal", 33, 1, 74, 2),
    Sketcher.Constraint("Horizontal", 30, 2, 77, 1),
    Sketcher.Constraint("Vertical", 23, 3, 41, 3),
    Sketcher.Constraint("Vertical", 19, 3, 45, 3),
    Sketcher.Constraint("Vertical", 7, 3, 57, 3),
    Sketcher.Constraint("Vertical", 3, 3, 61, 3),
    Sketcher.Constraint("Vertical", 71, 3, 81, 3),
    Sketcher.Constraint("Vertical", 67, 3, 85, 3),
    Sketcher.Constraint("Vertical", 8, 2, 55, 1),
    Sketcher.Constraint("Vertical", 64, 2, 69, 2),
    Sketcher.Constraint("Equal", 0, 20),
    Sketcher.Constraint("Equal", 28, 36),
    Sketcher.Constraint("Equal", 10, 54),
    Sketcher.Constraint("Equal", 36, 80),
    Sketcher.Constraint("Equal", 80, 6),
    Sketcher.Constraint("Equal", 64, 22),
    Sketcher.Constraint("Equal", 60, 26),
    Sketcher.Constraint("Equal", 54, 32),
    Sketcher.Constraint("Equal", 26, 38),
    Sketcher.Constraint("Equal", 14, 58),
    Sketcher.Constraint("Equal", 22, 66),
    Sketcher.Constraint("Equal", 12, 30),
    Sketcher.Constraint("Equal", 30, 34),
    Sketcher.Constraint("Diameter", 88, Q("5 mm")),
    Sketcher.Constraint("Radius", 21, Q("1 mm")),
    Sketcher.Constraint("Radius", 1, Q("0.3 mm")),
    Sketcher.Constraint("DistanceX", 4, 2, 4, 1, Q("1 mm")),
    Sketcher.Constraint("DistanceX", 0, 1, 0, 2, Q("3.2 mm")),
    Sketcher.Constraint("DistanceX", -1, 1, 37, 1, Q("14 mm")),
    Sketcher.Constraint("DistanceY", -1, 1, 35, 3, Q("11.8 mm")),
    Sketcher.Constraint("DistanceX", -1, 1, 88, 3, Q("7.5 mm")),
    Sketcher.Constraint("DistanceY", -1, 1, 88, 3, Q("7.5 mm")),
    Sketcher.Constraint("Radius", 7, Q("0.305736 mm")),
    Sketcher.Constraint("DistanceX", 10, 1, 10, 2, Q("5.337258 mm")),
    Sketcher.Constraint("DistanceX", 28, 2, 28, 1, Q("0.768629 mm")),
    Sketcher.Constraint("DistanceX", 40, 1, 40, 2, Q("0.397149 mm")),
    Sketcher.Constraint("DistanceX", 48, 1, 48, 2, Q("1.00168 mm")),
    Sketcher.Constraint("DistanceX", 72, 1, 72, 2, Q("0.760779 mm")),
    Sketcher.Constraint("DistanceY", 42, 1, 42, 2, Q("3.189008 mm")),
    Sketcher.Constraint("DistanceY", 70, 1, 70, 2, Q("1.001191 mm")),
    Sketcher.Constraint("DistanceX", -1, 1, 55, 3, Q("4.8302 mm")),
    Sketcher.Constraint("DistanceX", 24, 2, 24, 1, Q("0.391887 mm")),
    Sketcher.Constraint("DistanceY", -1, 1, 33, 3, Q("10.141742 mm")),
])
sketch1.setExpression("Constraints[207]", "Params.sketch1_diameter")
sketch1.setExpression("Constraints[208]", "Params.sketch1_radius")
sketch1.setExpression("Constraints[209]", "Params.sketch1_radius2")
sketch1.setExpression("Constraints[210]", "Params.sketch1_width")
sketch1.setExpression("Constraints[211]", "Params.sketch1_width2")
pad1 = doc.addObject("PartDesign::Pad", "Pad")
body.addObject(pad1)
pad1.Profile = sketch1
pad1.setExpression("Length", "Params.pad1_length")

doc.recompute()
